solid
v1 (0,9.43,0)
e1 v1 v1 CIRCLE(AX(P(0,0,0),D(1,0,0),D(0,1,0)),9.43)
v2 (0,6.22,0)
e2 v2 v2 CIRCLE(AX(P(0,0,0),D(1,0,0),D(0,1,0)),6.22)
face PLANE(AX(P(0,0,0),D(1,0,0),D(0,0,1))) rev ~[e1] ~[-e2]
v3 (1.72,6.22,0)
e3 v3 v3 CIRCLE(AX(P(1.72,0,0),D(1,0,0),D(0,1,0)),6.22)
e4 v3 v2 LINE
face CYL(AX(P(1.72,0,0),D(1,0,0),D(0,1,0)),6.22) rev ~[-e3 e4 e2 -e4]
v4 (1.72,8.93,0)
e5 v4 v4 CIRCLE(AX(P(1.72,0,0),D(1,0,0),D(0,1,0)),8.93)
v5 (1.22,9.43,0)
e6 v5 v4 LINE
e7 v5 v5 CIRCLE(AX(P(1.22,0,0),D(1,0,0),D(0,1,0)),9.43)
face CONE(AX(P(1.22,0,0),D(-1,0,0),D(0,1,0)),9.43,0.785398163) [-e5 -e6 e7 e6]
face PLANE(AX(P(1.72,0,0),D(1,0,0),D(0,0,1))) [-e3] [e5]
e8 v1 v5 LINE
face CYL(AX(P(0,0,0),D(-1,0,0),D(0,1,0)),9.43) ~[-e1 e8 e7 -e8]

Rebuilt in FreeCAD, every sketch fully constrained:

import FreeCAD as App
import Part
import Sketcher


def edges_at(feature, points):
    """Names of the edges that pass closest to the given points."""
    edges = feature.Shape.Edges
    near = lambda p: min(range(len(edges)), key=lambda i: edges[i].distToShape(Part.Vertex(*p))[0])
    return sorted({f"Edge{near(p) + 1}" for p in points})

doc = App.newDocument("Part")
body = doc.addObject("PartDesign::Body", "Body")

# Sketch on YZ plane
sketch1 = body.newObject("Sketcher::SketchObject", "Sketch")
sketch1.AttachmentSupport = (doc.getObject("YZ_Plane"), [""])
sketch1.MapMode = "FlatFace"
sketch1.addGeometry(Part.Circle(App.Vector(0, 0, 0), App.Vector(0, 0, 1), 9), False)
sketch1.addConstraint([
    Sketcher.Constraint("Coincident", 0, 3, -1, 1),
    Sketcher.Constraint("Diameter", 0, 18.86),
])
pad1 = body.newObject("PartDesign::Pad", "Pad")
pad1.Profile = sketch1
pad1.Length = 1.72

# Sketch on YZ plane
sketch2 = body.newObject("Sketcher::SketchObject", "Sketch001")
sketch2.AttachmentSupport = (doc.getObject("YZ_Plane"), [""])
sketch2.MapMode = "FlatFace"
sketch2.AttachmentOffset = App.Placement(App.Vector(0, 0, 1.72), App.Rotation())
sketch2.addGeometry(Part.Circle(App.Vector(0, 0, 0), App.Vector(0, 0, 1), 6), False)
sketch2.addConstraint([
    Sketcher.Constraint("Coincident", 0, 3, -1, 1),
    Sketcher.Constraint("Diameter", 0, 12.44),
])
pocket1 = body.newObject("PartDesign::Pocket", "Pocket")
pocket1.Profile = sketch2
pocket1.Type = "ThroughAll"
doc.recompute()

chamfer = body.newObject("PartDesign::Chamfer", "Chamfer")
chamfer.Base = (pocket1, edges_at(pocket1, [(1.72, -9.43, 0)]))
chamfer.Size = 0.5

doc.recompute()
